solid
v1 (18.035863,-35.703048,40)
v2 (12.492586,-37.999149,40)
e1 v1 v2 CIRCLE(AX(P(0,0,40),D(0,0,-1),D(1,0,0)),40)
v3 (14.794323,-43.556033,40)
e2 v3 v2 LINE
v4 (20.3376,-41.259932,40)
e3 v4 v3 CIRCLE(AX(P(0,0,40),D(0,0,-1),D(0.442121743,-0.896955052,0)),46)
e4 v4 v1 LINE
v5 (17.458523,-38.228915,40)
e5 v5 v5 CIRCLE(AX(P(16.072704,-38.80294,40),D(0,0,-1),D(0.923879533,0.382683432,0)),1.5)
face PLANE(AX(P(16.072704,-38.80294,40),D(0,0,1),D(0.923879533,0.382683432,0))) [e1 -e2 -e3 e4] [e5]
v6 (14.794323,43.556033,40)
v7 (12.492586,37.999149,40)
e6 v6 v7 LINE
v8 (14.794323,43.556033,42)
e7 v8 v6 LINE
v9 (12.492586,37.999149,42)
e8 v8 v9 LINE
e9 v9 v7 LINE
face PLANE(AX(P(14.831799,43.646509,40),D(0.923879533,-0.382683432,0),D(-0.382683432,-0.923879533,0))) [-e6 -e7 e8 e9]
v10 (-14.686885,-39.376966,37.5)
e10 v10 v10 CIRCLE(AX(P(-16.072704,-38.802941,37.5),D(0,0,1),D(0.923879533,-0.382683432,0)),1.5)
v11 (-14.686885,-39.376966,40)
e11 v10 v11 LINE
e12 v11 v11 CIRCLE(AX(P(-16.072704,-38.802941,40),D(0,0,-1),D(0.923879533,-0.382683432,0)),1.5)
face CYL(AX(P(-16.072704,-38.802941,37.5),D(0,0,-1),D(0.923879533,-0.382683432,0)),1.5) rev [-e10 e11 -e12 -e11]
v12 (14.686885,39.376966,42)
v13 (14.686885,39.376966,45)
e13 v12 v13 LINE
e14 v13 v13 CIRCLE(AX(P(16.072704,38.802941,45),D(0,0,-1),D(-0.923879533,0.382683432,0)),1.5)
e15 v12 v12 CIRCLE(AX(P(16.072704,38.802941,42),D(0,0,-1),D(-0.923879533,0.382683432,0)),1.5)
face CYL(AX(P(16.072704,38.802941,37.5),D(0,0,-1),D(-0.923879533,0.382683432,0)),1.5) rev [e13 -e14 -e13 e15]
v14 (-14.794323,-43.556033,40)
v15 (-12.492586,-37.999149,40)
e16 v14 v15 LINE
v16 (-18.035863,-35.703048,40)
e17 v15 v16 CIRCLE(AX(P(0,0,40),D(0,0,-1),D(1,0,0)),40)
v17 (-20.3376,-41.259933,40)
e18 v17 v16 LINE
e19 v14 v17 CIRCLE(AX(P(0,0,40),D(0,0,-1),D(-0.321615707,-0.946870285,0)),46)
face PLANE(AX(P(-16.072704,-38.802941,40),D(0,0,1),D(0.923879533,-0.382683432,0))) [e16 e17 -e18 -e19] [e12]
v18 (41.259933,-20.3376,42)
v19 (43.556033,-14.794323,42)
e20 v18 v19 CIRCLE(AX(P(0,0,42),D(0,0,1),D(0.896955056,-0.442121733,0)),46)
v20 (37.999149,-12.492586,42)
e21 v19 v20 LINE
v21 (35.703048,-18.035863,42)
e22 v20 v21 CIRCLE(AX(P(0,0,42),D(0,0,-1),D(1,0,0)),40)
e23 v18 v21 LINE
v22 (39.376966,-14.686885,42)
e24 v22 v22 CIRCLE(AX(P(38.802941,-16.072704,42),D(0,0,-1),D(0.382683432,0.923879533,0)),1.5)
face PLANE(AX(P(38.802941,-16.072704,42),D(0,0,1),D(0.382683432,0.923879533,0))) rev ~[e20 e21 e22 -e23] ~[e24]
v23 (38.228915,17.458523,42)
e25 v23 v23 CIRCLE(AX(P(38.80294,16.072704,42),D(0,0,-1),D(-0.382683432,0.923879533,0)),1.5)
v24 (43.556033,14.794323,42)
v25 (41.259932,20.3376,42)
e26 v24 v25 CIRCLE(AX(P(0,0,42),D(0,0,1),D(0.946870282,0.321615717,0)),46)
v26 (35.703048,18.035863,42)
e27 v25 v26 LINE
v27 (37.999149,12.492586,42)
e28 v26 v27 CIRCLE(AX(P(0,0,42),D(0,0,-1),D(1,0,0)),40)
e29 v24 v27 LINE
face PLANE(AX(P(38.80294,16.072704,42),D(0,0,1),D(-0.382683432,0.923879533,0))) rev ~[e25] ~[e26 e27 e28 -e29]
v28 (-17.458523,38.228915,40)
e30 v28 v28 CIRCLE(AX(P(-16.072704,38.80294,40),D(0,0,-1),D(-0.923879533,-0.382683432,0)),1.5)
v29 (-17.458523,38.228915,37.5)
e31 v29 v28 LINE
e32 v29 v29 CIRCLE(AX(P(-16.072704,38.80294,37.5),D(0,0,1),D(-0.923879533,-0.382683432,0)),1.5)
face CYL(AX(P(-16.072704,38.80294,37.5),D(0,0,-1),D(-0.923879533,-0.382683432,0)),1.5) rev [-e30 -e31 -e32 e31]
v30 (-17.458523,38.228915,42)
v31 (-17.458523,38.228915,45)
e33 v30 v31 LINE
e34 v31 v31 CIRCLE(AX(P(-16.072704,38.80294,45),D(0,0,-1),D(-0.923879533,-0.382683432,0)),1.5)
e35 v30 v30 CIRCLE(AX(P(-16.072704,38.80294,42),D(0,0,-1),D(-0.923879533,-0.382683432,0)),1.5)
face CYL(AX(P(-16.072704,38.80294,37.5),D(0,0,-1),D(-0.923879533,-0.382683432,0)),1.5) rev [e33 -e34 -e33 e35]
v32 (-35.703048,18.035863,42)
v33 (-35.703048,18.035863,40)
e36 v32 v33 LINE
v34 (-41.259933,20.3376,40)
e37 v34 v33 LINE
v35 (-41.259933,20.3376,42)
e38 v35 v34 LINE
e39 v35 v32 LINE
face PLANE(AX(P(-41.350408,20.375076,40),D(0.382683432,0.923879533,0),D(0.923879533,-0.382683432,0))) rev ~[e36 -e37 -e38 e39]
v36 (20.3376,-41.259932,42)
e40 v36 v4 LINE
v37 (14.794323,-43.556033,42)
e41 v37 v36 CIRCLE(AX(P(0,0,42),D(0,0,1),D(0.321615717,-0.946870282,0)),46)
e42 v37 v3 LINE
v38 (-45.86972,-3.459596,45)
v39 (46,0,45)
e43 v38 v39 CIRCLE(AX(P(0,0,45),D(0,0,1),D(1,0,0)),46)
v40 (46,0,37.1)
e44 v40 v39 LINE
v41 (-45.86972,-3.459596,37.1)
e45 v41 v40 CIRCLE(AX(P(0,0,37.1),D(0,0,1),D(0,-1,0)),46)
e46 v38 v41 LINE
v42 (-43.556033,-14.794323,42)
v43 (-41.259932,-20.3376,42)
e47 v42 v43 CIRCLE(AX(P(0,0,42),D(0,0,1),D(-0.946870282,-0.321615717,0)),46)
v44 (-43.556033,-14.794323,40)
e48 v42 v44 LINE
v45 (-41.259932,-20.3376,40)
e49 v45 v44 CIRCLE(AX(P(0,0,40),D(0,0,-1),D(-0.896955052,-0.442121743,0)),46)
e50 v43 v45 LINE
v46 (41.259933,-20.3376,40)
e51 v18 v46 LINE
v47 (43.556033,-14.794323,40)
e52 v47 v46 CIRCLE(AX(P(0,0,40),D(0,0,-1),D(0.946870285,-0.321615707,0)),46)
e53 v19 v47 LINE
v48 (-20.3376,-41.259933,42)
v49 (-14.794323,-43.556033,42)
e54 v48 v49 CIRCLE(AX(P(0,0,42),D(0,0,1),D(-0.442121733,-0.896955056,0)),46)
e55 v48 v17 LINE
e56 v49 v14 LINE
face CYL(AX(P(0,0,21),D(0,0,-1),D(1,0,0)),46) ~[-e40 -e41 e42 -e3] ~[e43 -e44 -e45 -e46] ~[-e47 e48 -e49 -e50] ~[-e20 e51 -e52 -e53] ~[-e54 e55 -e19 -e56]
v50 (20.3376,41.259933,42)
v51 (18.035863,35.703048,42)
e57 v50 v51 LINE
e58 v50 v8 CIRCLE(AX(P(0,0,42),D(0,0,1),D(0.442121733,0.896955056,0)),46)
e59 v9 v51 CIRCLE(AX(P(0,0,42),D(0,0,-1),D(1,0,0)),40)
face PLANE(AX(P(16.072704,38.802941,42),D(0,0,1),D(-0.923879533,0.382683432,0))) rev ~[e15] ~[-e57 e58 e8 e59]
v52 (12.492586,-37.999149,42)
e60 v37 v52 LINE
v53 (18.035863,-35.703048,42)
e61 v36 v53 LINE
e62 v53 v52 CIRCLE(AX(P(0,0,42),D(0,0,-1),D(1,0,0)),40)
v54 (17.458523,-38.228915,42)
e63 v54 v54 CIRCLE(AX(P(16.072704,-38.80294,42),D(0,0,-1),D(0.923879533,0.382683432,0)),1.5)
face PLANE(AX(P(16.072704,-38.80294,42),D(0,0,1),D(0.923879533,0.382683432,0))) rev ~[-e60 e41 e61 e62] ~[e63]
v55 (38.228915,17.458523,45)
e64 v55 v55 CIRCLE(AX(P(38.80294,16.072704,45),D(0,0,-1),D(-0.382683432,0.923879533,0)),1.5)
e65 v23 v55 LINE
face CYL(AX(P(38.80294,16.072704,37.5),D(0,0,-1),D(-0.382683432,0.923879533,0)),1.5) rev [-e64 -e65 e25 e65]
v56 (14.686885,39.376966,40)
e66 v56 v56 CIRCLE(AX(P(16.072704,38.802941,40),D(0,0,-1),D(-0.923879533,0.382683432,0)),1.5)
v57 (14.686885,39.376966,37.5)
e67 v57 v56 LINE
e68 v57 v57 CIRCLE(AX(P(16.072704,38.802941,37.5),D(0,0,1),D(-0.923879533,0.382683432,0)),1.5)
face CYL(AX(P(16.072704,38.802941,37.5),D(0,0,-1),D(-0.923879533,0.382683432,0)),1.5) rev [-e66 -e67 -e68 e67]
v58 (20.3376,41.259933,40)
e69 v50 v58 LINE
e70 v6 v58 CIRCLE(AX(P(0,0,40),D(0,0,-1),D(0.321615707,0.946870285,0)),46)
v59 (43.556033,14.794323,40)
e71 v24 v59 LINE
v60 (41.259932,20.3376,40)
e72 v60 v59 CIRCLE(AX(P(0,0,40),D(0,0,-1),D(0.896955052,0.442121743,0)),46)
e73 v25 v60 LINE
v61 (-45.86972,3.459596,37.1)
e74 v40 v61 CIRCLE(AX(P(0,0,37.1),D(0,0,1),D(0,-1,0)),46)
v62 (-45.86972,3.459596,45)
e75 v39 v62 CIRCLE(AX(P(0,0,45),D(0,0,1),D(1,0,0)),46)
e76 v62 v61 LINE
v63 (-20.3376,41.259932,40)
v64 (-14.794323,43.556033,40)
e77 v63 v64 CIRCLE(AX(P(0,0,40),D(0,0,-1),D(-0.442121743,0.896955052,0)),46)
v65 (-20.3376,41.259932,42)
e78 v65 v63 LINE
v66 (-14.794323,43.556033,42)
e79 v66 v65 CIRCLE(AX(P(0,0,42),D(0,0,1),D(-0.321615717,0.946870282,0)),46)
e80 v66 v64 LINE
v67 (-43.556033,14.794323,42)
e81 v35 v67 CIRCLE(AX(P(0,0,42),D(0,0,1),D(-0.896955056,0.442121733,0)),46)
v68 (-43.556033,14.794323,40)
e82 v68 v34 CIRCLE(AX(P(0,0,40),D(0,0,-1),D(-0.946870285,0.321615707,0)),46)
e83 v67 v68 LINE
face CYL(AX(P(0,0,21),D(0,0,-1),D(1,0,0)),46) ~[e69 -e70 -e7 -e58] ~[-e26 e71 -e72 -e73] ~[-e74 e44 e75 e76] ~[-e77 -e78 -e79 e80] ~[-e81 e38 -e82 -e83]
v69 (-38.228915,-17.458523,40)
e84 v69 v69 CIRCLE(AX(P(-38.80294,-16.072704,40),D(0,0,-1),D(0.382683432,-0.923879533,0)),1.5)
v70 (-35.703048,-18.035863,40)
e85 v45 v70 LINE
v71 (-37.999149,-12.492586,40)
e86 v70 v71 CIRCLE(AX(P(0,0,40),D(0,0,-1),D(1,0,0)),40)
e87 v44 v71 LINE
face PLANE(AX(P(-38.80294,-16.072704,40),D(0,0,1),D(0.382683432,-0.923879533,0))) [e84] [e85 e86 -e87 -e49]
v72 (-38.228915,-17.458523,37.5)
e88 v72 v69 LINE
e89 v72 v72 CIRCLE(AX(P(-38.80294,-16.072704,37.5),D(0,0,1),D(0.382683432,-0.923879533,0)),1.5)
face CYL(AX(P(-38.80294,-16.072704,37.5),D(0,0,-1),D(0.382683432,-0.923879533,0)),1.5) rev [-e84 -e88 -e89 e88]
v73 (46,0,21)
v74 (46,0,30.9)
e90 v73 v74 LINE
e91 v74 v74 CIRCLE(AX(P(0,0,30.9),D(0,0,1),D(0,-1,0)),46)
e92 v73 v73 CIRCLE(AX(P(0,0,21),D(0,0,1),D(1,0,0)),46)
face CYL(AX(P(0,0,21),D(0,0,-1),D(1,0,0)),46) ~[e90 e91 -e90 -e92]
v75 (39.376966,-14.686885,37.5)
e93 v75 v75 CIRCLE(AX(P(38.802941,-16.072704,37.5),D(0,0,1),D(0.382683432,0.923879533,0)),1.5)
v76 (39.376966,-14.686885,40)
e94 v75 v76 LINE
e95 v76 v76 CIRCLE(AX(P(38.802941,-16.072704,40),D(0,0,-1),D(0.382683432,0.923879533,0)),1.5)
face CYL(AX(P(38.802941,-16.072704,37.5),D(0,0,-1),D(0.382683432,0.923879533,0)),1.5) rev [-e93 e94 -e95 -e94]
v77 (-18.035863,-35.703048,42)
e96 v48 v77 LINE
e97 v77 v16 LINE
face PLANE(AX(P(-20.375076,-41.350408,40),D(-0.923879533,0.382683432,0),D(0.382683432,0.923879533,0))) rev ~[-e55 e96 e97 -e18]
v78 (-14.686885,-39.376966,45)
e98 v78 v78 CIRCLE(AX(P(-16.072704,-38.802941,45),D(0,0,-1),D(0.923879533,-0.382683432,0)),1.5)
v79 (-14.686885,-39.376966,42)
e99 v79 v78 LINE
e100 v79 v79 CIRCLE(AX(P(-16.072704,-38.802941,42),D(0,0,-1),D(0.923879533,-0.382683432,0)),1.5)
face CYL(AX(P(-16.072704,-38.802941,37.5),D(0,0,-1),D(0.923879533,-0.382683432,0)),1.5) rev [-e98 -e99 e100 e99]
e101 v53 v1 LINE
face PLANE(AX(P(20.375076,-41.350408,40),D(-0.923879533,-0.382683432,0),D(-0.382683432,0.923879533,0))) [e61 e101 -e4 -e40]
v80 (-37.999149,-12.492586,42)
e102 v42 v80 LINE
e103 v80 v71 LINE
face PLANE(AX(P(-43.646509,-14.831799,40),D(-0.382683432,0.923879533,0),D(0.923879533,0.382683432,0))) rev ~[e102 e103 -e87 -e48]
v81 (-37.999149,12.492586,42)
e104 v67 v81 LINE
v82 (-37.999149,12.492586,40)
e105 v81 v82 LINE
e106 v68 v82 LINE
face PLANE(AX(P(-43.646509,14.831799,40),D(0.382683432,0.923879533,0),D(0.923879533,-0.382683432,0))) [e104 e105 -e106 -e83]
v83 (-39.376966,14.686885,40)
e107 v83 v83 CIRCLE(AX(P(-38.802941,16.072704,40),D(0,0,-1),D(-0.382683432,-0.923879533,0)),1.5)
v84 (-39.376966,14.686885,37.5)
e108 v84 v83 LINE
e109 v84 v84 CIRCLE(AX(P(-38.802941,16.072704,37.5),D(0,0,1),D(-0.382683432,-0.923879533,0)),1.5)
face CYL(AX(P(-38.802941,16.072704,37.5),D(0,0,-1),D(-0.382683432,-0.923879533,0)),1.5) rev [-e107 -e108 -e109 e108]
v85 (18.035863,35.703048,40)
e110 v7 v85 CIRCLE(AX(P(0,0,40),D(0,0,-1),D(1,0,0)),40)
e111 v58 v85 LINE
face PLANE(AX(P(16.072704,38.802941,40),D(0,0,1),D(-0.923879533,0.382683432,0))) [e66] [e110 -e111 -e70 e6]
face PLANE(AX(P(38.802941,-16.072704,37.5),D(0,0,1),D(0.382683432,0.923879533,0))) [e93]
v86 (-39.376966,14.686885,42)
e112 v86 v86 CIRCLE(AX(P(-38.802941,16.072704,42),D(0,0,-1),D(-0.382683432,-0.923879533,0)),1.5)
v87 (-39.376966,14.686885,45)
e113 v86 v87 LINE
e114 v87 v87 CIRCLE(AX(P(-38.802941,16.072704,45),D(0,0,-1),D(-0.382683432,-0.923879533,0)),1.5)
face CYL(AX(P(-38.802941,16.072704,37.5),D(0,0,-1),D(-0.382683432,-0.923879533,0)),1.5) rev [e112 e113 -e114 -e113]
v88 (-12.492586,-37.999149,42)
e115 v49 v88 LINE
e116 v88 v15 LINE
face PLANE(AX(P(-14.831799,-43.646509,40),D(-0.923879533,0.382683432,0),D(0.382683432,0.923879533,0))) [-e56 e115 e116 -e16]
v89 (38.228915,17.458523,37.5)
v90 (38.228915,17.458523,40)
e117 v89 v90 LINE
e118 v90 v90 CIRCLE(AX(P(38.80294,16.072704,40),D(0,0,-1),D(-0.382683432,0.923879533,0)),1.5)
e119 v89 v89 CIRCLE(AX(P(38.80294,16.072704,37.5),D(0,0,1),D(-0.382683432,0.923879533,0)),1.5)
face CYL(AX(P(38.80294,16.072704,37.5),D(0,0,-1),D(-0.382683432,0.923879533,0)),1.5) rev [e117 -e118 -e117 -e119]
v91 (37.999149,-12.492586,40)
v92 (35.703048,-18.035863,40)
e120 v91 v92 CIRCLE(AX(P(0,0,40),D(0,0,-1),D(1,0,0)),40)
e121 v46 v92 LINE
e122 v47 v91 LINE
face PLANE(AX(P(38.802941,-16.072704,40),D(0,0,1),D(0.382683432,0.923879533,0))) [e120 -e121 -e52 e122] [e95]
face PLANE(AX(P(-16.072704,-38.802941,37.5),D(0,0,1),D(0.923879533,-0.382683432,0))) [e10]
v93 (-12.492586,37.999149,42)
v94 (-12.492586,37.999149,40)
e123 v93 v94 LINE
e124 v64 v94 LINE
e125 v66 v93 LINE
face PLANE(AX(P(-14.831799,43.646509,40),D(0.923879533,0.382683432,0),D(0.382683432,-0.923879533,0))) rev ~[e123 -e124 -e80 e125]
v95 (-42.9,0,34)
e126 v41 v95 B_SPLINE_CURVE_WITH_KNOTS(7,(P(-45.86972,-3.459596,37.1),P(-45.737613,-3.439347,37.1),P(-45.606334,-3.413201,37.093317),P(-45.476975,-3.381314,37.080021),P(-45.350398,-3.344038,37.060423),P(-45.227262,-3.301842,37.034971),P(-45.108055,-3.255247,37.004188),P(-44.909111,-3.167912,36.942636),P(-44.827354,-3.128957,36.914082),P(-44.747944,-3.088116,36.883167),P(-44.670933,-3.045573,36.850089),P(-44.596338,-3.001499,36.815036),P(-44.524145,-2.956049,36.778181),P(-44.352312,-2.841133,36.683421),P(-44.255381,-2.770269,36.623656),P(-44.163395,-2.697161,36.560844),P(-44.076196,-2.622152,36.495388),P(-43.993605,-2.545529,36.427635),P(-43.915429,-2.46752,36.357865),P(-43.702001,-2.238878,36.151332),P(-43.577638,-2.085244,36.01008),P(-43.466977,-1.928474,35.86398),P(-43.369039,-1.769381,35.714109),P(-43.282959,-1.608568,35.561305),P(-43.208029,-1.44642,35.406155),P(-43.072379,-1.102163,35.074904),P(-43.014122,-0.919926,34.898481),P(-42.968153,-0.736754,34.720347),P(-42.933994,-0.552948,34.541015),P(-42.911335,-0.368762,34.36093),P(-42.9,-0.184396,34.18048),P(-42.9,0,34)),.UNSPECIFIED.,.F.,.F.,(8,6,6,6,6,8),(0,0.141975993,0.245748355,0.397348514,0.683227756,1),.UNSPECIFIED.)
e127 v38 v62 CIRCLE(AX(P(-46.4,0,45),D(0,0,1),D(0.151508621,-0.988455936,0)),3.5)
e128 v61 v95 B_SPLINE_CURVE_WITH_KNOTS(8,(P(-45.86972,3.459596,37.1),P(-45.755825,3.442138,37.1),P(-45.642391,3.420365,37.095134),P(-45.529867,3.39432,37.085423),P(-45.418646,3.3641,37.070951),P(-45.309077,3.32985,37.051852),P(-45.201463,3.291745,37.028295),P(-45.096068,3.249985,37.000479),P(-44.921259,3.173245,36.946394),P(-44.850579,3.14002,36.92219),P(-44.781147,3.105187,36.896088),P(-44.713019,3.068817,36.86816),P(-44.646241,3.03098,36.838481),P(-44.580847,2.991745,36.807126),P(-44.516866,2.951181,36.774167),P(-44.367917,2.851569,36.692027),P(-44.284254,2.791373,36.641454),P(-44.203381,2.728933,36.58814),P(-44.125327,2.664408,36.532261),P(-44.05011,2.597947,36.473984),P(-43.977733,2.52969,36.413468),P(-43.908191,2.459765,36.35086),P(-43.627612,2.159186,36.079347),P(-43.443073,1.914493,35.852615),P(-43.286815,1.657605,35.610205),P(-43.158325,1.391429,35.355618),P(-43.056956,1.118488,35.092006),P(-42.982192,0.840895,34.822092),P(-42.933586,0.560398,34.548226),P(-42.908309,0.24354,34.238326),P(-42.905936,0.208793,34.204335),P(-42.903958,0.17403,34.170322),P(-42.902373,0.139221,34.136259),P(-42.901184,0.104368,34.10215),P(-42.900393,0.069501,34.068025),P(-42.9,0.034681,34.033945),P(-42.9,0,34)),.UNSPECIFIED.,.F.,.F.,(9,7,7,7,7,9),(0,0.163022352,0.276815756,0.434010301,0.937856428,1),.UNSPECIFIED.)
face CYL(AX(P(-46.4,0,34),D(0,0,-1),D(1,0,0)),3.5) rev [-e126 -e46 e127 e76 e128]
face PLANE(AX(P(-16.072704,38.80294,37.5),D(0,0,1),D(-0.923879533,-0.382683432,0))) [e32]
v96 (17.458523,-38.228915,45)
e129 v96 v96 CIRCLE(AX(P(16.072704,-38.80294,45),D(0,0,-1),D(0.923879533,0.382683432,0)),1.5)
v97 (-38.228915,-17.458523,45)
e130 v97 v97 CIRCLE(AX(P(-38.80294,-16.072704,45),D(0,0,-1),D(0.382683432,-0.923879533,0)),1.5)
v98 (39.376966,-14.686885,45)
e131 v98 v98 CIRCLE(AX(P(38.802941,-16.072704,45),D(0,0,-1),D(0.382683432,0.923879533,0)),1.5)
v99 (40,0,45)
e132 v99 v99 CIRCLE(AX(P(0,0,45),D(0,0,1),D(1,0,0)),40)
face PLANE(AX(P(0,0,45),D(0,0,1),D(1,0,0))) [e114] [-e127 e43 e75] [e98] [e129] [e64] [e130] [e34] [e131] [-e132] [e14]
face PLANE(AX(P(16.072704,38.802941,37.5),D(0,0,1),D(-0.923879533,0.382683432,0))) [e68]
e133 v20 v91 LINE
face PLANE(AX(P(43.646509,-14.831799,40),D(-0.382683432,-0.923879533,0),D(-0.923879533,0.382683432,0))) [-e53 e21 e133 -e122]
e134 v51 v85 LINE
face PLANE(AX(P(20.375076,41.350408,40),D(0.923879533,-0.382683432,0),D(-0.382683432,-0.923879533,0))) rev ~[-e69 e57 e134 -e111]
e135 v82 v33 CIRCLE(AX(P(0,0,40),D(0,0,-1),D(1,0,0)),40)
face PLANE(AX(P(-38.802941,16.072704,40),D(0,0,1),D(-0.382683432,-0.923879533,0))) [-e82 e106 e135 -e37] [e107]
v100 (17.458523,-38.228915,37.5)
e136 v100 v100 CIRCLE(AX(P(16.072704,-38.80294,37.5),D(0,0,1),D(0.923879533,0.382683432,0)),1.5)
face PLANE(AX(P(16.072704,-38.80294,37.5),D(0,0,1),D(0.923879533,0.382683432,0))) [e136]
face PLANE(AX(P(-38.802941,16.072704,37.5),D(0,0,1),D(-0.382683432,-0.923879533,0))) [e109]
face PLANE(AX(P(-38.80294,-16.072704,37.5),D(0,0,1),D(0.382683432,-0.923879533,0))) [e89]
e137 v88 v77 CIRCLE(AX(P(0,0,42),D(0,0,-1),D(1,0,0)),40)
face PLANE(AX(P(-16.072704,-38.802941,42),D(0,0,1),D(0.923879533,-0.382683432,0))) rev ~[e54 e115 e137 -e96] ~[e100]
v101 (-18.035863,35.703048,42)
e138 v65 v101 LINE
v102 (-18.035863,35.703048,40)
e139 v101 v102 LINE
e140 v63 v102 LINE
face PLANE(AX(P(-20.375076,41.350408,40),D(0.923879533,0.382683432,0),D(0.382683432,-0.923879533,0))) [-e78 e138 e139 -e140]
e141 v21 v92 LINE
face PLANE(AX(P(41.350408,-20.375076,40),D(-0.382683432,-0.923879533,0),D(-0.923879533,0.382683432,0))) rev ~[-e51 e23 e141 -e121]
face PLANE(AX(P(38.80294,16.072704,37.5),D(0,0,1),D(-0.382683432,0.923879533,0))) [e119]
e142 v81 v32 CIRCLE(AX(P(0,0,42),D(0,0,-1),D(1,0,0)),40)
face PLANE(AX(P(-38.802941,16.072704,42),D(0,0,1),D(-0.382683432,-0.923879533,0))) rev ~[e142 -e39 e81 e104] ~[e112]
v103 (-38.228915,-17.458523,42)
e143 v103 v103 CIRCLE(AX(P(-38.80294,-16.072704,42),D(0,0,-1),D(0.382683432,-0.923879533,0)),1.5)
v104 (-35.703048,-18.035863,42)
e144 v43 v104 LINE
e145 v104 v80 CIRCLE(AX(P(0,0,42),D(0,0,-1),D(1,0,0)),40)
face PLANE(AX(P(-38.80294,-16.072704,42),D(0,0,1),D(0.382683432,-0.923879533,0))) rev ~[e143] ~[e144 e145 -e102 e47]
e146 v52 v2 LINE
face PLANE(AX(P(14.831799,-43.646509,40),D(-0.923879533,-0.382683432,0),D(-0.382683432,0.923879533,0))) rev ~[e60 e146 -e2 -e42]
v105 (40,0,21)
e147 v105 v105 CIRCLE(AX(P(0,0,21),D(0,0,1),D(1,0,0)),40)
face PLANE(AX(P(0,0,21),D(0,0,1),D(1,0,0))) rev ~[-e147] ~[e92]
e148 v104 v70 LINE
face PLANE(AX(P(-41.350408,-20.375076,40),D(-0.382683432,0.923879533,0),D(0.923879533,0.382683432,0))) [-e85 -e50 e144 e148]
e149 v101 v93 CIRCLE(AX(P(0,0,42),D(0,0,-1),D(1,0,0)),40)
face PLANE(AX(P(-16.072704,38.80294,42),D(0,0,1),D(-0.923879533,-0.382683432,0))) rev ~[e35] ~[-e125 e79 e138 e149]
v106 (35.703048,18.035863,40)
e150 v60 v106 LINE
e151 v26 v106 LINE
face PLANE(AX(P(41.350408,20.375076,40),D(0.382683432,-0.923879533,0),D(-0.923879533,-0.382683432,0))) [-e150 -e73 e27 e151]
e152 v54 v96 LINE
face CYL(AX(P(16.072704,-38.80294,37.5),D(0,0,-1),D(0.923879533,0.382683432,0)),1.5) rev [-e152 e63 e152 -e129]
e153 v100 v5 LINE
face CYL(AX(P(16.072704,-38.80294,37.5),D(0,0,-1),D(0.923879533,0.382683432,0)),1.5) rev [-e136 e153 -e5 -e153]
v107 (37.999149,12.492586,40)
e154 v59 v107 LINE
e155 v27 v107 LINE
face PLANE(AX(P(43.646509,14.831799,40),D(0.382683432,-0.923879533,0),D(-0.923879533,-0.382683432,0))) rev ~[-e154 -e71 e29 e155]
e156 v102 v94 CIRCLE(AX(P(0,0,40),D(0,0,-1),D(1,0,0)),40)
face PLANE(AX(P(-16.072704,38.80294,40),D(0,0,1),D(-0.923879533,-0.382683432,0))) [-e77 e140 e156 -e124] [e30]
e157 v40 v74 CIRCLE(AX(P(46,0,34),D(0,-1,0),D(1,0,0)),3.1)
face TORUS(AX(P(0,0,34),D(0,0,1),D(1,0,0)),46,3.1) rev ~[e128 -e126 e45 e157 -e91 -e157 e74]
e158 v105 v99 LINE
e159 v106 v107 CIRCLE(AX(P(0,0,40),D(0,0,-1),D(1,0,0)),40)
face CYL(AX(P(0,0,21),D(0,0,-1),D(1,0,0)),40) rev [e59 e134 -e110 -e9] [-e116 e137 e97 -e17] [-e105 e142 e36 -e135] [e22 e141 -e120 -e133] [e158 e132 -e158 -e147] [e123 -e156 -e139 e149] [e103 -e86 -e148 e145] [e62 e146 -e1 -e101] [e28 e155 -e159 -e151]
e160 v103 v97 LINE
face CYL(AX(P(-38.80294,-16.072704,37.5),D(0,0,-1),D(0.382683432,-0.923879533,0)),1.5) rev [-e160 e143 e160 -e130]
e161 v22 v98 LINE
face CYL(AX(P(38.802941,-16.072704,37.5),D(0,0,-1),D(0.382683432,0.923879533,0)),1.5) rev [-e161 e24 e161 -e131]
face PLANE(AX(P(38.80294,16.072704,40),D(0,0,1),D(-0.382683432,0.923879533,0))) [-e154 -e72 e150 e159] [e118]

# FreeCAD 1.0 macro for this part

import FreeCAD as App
import Part
import Sketcher
Q = App.Units.Quantity


def add_polygon(sketch, points):
    """Adds a closed chain of lines whose ends are joined by coincident constraints."""
    first, n = sketch.GeometryCount, len(points)
    for a, b in zip(points, points[1:] + points[:1]):
        sketch.addGeometry(Part.LineSegment(App.Vector(*a, 0), App.Vector(*b, 0)), False)
    for i in range(n):
        sketch.addConstraint(Sketcher.Constraint("Coincident", first + i, 2, first + (i + 1) % n, 1))

doc = App.newDocument("Part")
body = doc.addObject("PartDesign::Body", "Body")

# Sketch on XY plane
sketch1 = body.newObject("Sketcher::SketchObject", "Sketch")
sketch1.AttachmentSupport = (doc.getObject("XY_Plane"), [""])
sketch1.MapMode = "FlatFace"
add_polygon(sketch1, [(0, 8), (0, 0), (6, 0), (6, 8)])  # lines 0-3
sketch1.addConstraint([
    Sketcher.Constraint("Vertical", 0),
    Sketcher.Constraint("Horizontal", 1),
    Sketcher.Constraint("Vertical", 2),
    Sketcher.Constraint("Horizontal", 3),
    Sketcher.Constraint("Coincident", 0, 2, -1, 1),
    Sketcher.Constraint("DistanceX", 1, 1, 1, 2, Q("6 mm")),
    Sketcher.Constraint("DistanceY", 0, 2, 0, 1, Q("8 mm")),
])
pad1 = body.newObject("PartDesign::Pad", "Pad")
pad1.Profile = sketch1
pad1.Length = 2
body2 = doc.addObject("PartDesign::Body", "Body001")
doc.recompute()

body.Placement = App.Placement(App.Vector(30.405592, -34.648232, 33), App.Rotation(App.Vector(0, 0, 1), 45))
boolean = body2.newObject("PartDesign::Boolean", "Boolean")
boolean.Type = "Fuse"
boolean.addObjects([body])
body3 = doc.addObject("PartDesign::Body", "Body002")

# Sketch on XY plane
sketch2 = body3.newObject("Sketcher::SketchObject", "Sketch001")
sketch2.AttachmentSupport = (doc.getObject("XY_Plane002"), [""])
sketch2.MapMode = "FlatFace"
sketch2.AttachmentOffset = App.Placement(App.Vector(0, 0, 33), App.Rotation())
add_polygon(sketch2, [(38, -3), (46, -3), (46, 3), (38, 3)])  # lines 0-3
sketch2.addConstraint([
    Sketcher.Constraint("Horizontal", 0),
    Sketcher.Constraint("Vertical", 1),
    Sketcher.Constraint("Horizontal", 2),
    Sketcher.Constraint("Vertical", 3),
    Sketcher.Constraint("DistanceX", 0, 1, 0, 2, Q("8 mm")),
    Sketcher.Constraint("DistanceY", 1, 1, 1, 2, Q("6 mm")),
    Sketcher.Constraint("DistanceX", -1, 1, 0, 2, Q("46 mm")),
    Sketcher.Constraint("DistanceY", 0, 2, -1, 1, Q("3 mm")),
])
pad2 = body3.newObject("PartDesign::Pad", "Pad001")
pad2.Profile = sketch2
pad2.Length = 2
body4 = doc.addObject("PartDesign::Body", "Body003")

# Sketch on XY plane
sketch3 = body4.newObject("Sketcher::SketchObject", "Sketch002")
sketch3.AttachmentSupport = (doc.getObject("XY_Plane003"), [""])
sketch3.MapMode = "FlatFace"
sketch3.AttachmentOffset = App.Placement(App.Vector(0, 0, 33), App.Rotation())
add_polygon(sketch3, [(-3, -38), (-3, -46), (3, -46), (3, -38)])  # lines 0-3
sketch3.addConstraint([
    Sketcher.Constraint("Vertical", 0),
    Sketcher.Constraint("Horizontal", 1),
    Sketcher.Constraint("Vertical", 2),
    Sketcher.Constraint("Horizontal", 3),
    Sketcher.Constraint("DistanceX", 1, 1, 1, 2, Q("6 mm")),
    Sketcher.Constraint("DistanceY", 0, 2, 0, 1, Q("8 mm")),
    Sketcher.Constraint("DistanceX", 0, 2, -1, 1, Q("3 mm")),
    Sketcher.Constraint("DistanceY", 0, 2, -1, 1, Q("46 mm")),
])
pad3 = body4.newObject("PartDesign::Pad", "Pad002")
pad3.Profile = sketch3
pad3.Length = 2
body5 = doc.addObject("PartDesign::Body", "Body004")

# Sketch on XY plane
sketch4 = body5.newObject("Sketcher::SketchObject", "Sketch003")
sketch4.AttachmentSupport = (doc.getObject("XY_Plane004"), [""])
sketch4.MapMode = "FlatFace"
add_polygon(sketch4, [(0, 8), (0, 0), (6, 0), (6, 8)])  # lines 0-3
sketch4.addConstraint([
    Sketcher.Constraint("Vertical", 0),
    Sketcher.Constraint("Horizontal", 1),
    Sketcher.Constraint("Vertical", 2),
    Sketcher.Constraint("Horizontal", 3),
    Sketcher.Constraint("Coincident", 0, 2, -1, 1),
    Sketcher.Constraint("DistanceX", 1, 1, 1, 2, Q("6 mm")),
    Sketcher.Constraint("DistanceY", 0, 2, 0, 1, Q("8 mm")),
])
pad4 = body5.newObject("PartDesign::Pad", "Pad003")
pad4.Profile = sketch4
pad4.Length = 2
body6 = doc.addObject("PartDesign::Body", "Body005")
doc.recompute()

body5.Placement = App.Placement(App.Vector(34.648232, 30.405592, 33), App.Rotation(App.Vector(0, 0, 1), 135))
boolean2 = body6.newObject("PartDesign::Boolean", "Boolean001")
boolean2.Type = "Fuse"
boolean2.addObjects([body5])
body7 = doc.addObject("PartDesign::Body", "Body006")

# Sketch on XY plane
sketch5 = body7.newObject("Sketcher::SketchObject", "Sketch004")
sketch5.AttachmentSupport = (doc.getObject("XY_Plane006"), [""])
sketch5.MapMode = "FlatFace"
sketch5.AttachmentOffset = App.Placement(App.Vector(0, 0, 33), App.Rotation())
add_polygon(sketch5, [(3, 38), (3, 46), (-3, 46), (-3, 38)])  # lines 0-3
sketch5.addConstraint([
    Sketcher.Constraint("Vertical", 0),
    Sketcher.Constraint("Horizontal", 1),
    Sketcher.Constraint("Vertical", 2),
    Sketcher.Constraint("Horizontal", 3),
    Sketcher.Constraint("DistanceX", 1, 2, 1, 1, Q("6 mm")),
    Sketcher.Constraint("DistanceY", 0, 1, 0, 2, Q("8 mm")),
    Sketcher.Constraint("DistanceX", -1, 1, 0, 2, Q("3 mm")),
    Sketcher.Constraint("DistanceY", -1, 1, 0, 2, Q("46 mm")),
])
pad5 = body7.newObject("PartDesign::Pad", "Pad004")
pad5.Profile = sketch5
pad5.Length = 2
body8 = doc.addObject("PartDesign::Body", "Body007")

# Sketch on XY plane
sketch6 = body8.newObject("Sketcher::SketchObject", "Sketch005")
sketch6.AttachmentSupport = (doc.getObject("XY_Plane007"), [""])
sketch6.MapMode = "FlatFace"
add_polygon(sketch6, [(0, 8), (0, 0), (6, 0), (6, 8)])  # lines 0-3
sketch6.addConstraint([
    Sketcher.Constraint("Vertical", 0),
    Sketcher.Constraint("Horizontal", 1),
    Sketcher.Constraint("Vertical", 2),
    Sketcher.Constraint("Horizontal", 3),
    Sketcher.Constraint("Coincident", 0, 2, -1, 1),
    Sketcher.Constraint("DistanceX", 1, 1, 1, 2, Q("6 mm")),
    Sketcher.Constraint("DistanceY", 0, 2, 0, 1, Q("8 mm")),
])
pad6 = body8.newObject("PartDesign::Pad", "Pad005")
pad6.Profile = sketch6
pad6.Length = 2
body9 = doc.addObject("PartDesign::Body", "Body008")
doc.recompute()

body8.Placement = App.Placement(App.Vector(-30.405592, 34.648232, 33), App.Rotation(App.Vector(0, 0, 1), 225))
boolean3 = body9.newObject("PartDesign::Boolean", "Boolean002")
boolean3.Type = "Fuse"
boolean3.addObjects([body8])
body10 = doc.addObject("PartDesign::Body", "Body009")

# Sketch on XY plane
sketch7 = body10.newObject("Sketcher::SketchObject", "Sketch006")
sketch7.AttachmentSupport = (doc.getObject("XY_Plane009"), [""])
sketch7.MapMode = "FlatFace"
sketch7.AttachmentOffset = App.Placement(App.Vector(0, 0, 33), App.Rotation())
add_polygon(sketch7, [(-38, 3), (-46, 3), (-46, -3), (-38, -3)])  # lines 0-3
sketch7.addConstraint([
    Sketcher.Constraint("Horizontal", 0),
    Sketcher.Constraint("Vertical", 1),
    Sketcher.Constraint("Horizontal", 2),
    Sketcher.Constraint("Vertical", 3),
    Sketcher.Constraint("DistanceX", 0, 2, 0, 1, Q("8 mm")),
    Sketcher.Constraint("DistanceY", 1, 2, 1, 1, Q("6 mm")),
    Sketcher.Constraint("DistanceX", 0, 2, -1, 1, Q("46 mm")),
    Sketcher.Constraint("DistanceY", -1, 1, 0, 2, Q("3 mm")),
])
pad7 = body10.newObject("PartDesign::Pad", "Pad006")
pad7.Profile = sketch7
pad7.Length = 2
body11 = doc.addObject("PartDesign::Body", "Body010")

# Sketch on XY plane
sketch8 = body11.newObject("Sketcher::SketchObject", "Sketch007")
sketch8.AttachmentSupport = (doc.getObject("XY_Plane010"), [""])
sketch8.MapMode = "FlatFace"
add_polygon(sketch8, [(0, 8), (0, 0), (6, 0), (6, 8)])  # lines 0-3
sketch8.addConstraint([
    Sketcher.Constraint("Vertical", 0),
    Sketcher.Constraint("Horizontal", 1),
    Sketcher.Constraint("Vertical", 2),
    Sketcher.Constraint("Horizontal", 3),
    Sketcher.Constraint("Coincident", 0, 2, -1, 1),
    Sketcher.Constraint("DistanceX", 1, 1, 1, 2, Q("6 mm")),
    Sketcher.Constraint("DistanceY", 0, 2, 0, 1, Q("8 mm")),
])
pad8 = body11.newObject("PartDesign::Pad", "Pad007")
pad8.Profile = sketch8
pad8.Length = 2
body12 = doc.addObject("PartDesign::Body", "Body011")
body12.AllowCompound = True
doc.recompute()

body11.Placement = App.Placement(App.Vector(-34.648232, -30.405592, 33), App.Rotation(App.Vector(0, 0, -1), 45))
boolean4 = body12.newObject("PartDesign::Boolean", "Boolean003")
boolean4.Type = "Fuse"
boolean4.addObjects([body11])
doc.recompute()

boolean5 = body12.newObject("PartDesign::Boolean", "Boolean004")
boolean5.Type = "Fuse"
boolean5.addObjects([body2])
doc.recompute()

boolean6 = body12.newObject("PartDesign::Boolean", "Boolean005")
boolean6.Type = "Fuse"
boolean6.addObjects([body3])
doc.recompute()

boolean7 = body12.newObject("PartDesign::Boolean", "Boolean006")
boolean7.Type = "Fuse"
boolean7.addObjects([body4])
doc.recompute()

boolean8 = body12.newObject("PartDesign::Boolean", "Boolean007")
boolean8.Type = "Fuse"
boolean8.addObjects([body6])
doc.recompute()

boolean9 = body12.newObject("PartDesign::Boolean", "Boolean008")
boolean9.Type = "Fuse"
boolean9.addObjects([body7])
doc.recompute()

boolean10 = body12.newObject("PartDesign::Boolean", "Boolean009")
boolean10.Type = "Fuse"
boolean10.addObjects([body9])
doc.recompute()

boolean11 = body12.newObject("PartDesign::Boolean", "Boolean010")
boolean11.Type = "Fuse"
boolean11.addObjects([body10])
body13 = doc.addObject("PartDesign::Body", "Body012")
body13.AllowCompound = True
doc.recompute()

body12.Placement = App.Placement(App.Vector(0, 0, 7), App.Rotation(App.Vector(0, 0, 1), 22.5))
boolean12 = body13.newObject("PartDesign::Boolean", "Boolean011")
boolean12.Type = "Fuse"
boolean12.addObjects([body12])
body14 = doc.addObject("PartDesign::Body", "Body013")

# Sketch on XY plane
sketch9 = body14.newObject("Sketcher::SketchObject", "Sketch008")
sketch9.AttachmentSupport = (doc.getObject("XY_Plane013"), [""])
sketch9.MapMode = "FlatFace"
sketch9.addGeometry(Part.Circle(App.Vector(0, 0, 0), App.Vector(0, 0, 1), 1.5), False)
sketch9.addConstraint([
    Sketcher.Constraint("Coincident", 0, 3, -1, 1),
    Sketcher.Constraint("Diameter", 0, Q("3 mm")),
])
pad9 = body14.newObject("PartDesign::Pad", "Pad008")
pad9.Profile = sketch9
pad9.Length = 32
body15 = doc.addObject("PartDesign::Body", "Body014")
doc.recompute()

body14.Placement = App.Placement(App.Vector(29.698485, -29.698485, 33.5), App.Rotation(App.Vector(0, 0, 1), 45))
boolean13 = body15.newObject("PartDesign::Boolean", "Boolean012")
boolean13.Type = "Fuse"
boolean13.addObjects([body14])
body16 = doc.addObject("PartDesign::Body", "Body015")

# Sketch on XY plane
sketch10 = body16.newObject("Sketcher::SketchObject", "Sketch009")
sketch10.AttachmentSupport = (doc.getObject("XY_Plane015"), [""])
sketch10.MapMode = "FlatFace"
sketch10.AttachmentOffset = App.Placement(App.Vector(0, 0, 33.5), App.Rotation())
sketch10.addGeometry(Part.Circle(App.Vector(42, 0, 0), App.Vector(0, 0, 1), 1.5), False)
sketch10.addConstraint([
    Sketcher.Constraint("PointOnObject", 0, 3, -1),
    Sketcher.Constraint("Diameter", 0, Q("3 mm")),
    Sketcher.Constraint("DistanceX", -1, 1, 0, 3, Q("42 mm")),
])
pad10 = body16.newObject("PartDesign::Pad", "Pad009")
pad10.Profile = sketch10
pad10.Length = 32
body17 = doc.addObject("PartDesign::Body", "Body016")

# Sketch on XY plane
sketch11 = body17.newObject("Sketcher::SketchObject", "Sketch010")
sketch11.AttachmentSupport = (doc.getObject("XY_Plane016"), [""])
sketch11.MapMode = "FlatFace"
sketch11.addGeometry(Part.Circle(App.Vector(0, 0, 0), App.Vector(0, 0, 1), 1.5), False)
sketch11.addConstraint([
    Sketcher.Constraint("Coincident", 0, 3, -1, 1),
    Sketcher.Constraint("Diameter", 0, Q("3 mm")),
])
pad11 = body17.newObject("PartDesign::Pad", "Pad010")
pad11.Profile = sketch11
pad11.Length = 32
body18 = doc.addObject("PartDesign::Body", "Body017")
doc.recompute()

body17.Placement = App.Placement(App.Vector(29.698485, 29.698485, 33.5), App.Rotation(App.Vector(0, 0, 1), 135))
boolean14 = body18.newObject("PartDesign::Boolean", "Boolean013")
boolean14.Type = "Fuse"
boolean14.addObjects([body17])
body19 = doc.addObject("PartDesign::Body", "Body018")

# Sketch on XY plane
sketch12 = body19.newObject("Sketcher::SketchObject", "Sketch011")
sketch12.AttachmentSupport = (doc.getObject("XY_Plane018"), [""])
sketch12.MapMode = "FlatFace"
sketch12.AttachmentOffset = App.Placement(App.Vector(0, 0, 33.5), App.Rotation())
sketch12.addGeometry(Part.Circle(App.Vector(0, 42, 0), App.Vector(0, 0, 1), 1.5), False)
sketch12.addConstraint([
    Sketcher.Constraint("PointOnObject", 0, 3, -2),
    Sketcher.Constraint("Diameter", 0, Q("3 mm")),
    Sketcher.Constraint("DistanceY", -1, 1, 0, 3, Q("42 mm")),
])
pad12 = body19.newObject("PartDesign::Pad", "Pad011")
pad12.Profile = sketch12
pad12.Length = 32
body20 = doc.addObject("PartDesign::Body", "Body019")

# Sketch on XY plane
sketch13 = body20.newObject("Sketcher::SketchObject", "Sketch012")
sketch13.AttachmentSupport = (doc.getObject("XY_Plane019"), [""])
sketch13.MapMode = "FlatFace"
sketch13.addGeometry(Part.Circle(App.Vector(0, 0, 0), App.Vector(0, 0, 1), 1.5), False)
sketch13.addConstraint([
    Sketcher.Constraint("Coincident", 0, 3, -1, 1),
    Sketcher.Constraint("Diameter", 0, Q("3 mm")),
])
pad13 = body20.newObject("PartDesign::Pad", "Pad012")
pad13.Profile = sketch13
pad13.Length = 32
body21 = doc.addObject("PartDesign::Body", "Body020")
doc.recompute()

body20.Placement = App.Placement(App.Vector(-29.698485, 29.698485, 33.5), App.Rotation(App.Vector(0, 0, 1), 225))
boolean15 = body21.newObject("PartDesign::Boolean", "Boolean014")
boolean15.Type = "Fuse"
boolean15.addObjects([body20])
body22 = doc.addObject("PartDesign::Body", "Body021")

# Sketch on XY plane
sketch14 = body22.newObject("Sketcher::SketchObject", "Sketch013")
sketch14.AttachmentSupport = (doc.getObject("XY_Plane021"), [""])
sketch14.MapMode = "FlatFace"
sketch14.AttachmentOffset = App.Placement(App.Vector(0, 0, 33.5), App.Rotation())
sketch14.addGeometry(Part.Circle(App.Vector(-42, 0, 0), App.Vector(0, 0, 1), 1.5), False)
sketch14.addConstraint([
    Sketcher.Constraint("PointOnObject", 0, 3, -1),
    Sketcher.Constraint("Diameter", 0, Q("3 mm")),
    Sketcher.Constraint("DistanceX", 0, 3, -1, 1, Q("42 mm")),
])
pad14 = body22.newObject("PartDesign::Pad", "Pad013")
pad14.Profile = sketch14
pad14.Length = 32
body23 = doc.addObject("PartDesign::Body", "Body022")

# Sketch on XY plane
sketch15 = body23.newObject("Sketcher::SketchObject", "Sketch014")
sketch15.AttachmentSupport = (doc.getObject("XY_Plane022"), [""])
sketch15.MapMode = "FlatFace"
sketch15.addGeometry(Part.Circle(App.Vector(0, 0, 0), App.Vector(0, 0, 1), 1.5), False)
sketch15.addConstraint([
    Sketcher.Constraint("Coincident", 0, 3, -1, 1),
    Sketcher.Constraint("Diameter", 0, Q("3 mm")),
])
pad15 = body23.newObject("PartDesign::Pad", "Pad014")
pad15.Profile = sketch15
pad15.Length = 32
body24 = doc.addObject("PartDesign::Body", "Body023")
doc.recompute()

body23.Placement = App.Placement(App.Vector(-29.698485, -29.698485, 33.5), App.Rotation(App.Vector(0, 0, -1), 45))
boolean16 = body24.newObject("PartDesign::Boolean", "Boolean015")
boolean16.Type = "Fuse"
boolean16.addObjects([body23])
body25 = doc.addObject("PartDesign::Body", "Body024")
body25.AllowCompound = True

# Sketch on XY plane
sketch16 = body25.newObject("Sketcher::SketchObject", "Sketch015")
sketch16.AttachmentSupport = (doc.getObject("XY_Plane024"), [""])
sketch16.MapMode = "FlatFace"
sketch16.AttachmentOffset = App.Placement(App.Vector(0, 0, 33.5), App.Rotation())
sketch16.addGeometry(Part.Circle(App.Vector(0, -42, 0), App.Vector(0, 0, 1), 1.5), False)
sketch16.addConstraint([
    Sketcher.Constraint("PointOnObject", 0, 3, -2),
    Sketcher.Constraint("Diameter", 0, Q("3 mm")),
    Sketcher.Constraint("DistanceY", 0, 3, -1, 1, Q("42 mm")),
])
pad16 = body25.newObject("PartDesign::Pad", "Pad015")
pad16.Profile = sketch16
pad16.Length = 32
doc.recompute()

boolean17 = body25.newObject("PartDesign::Boolean", "Boolean016")
boolean17.Type = "Fuse"
boolean17.addObjects([body15])
doc.recompute()

boolean18 = body25.newObject("PartDesign::Boolean", "Boolean017")
boolean18.Type = "Fuse"
boolean18.addObjects([body16])
doc.recompute()

boolean19 = body25.newObject("PartDesign::Boolean", "Boolean018")
boolean19.Type = "Fuse"
boolean19.addObjects([body18])
doc.recompute()

boolean20 = body25.newObject("PartDesign::Boolean", "Boolean019")
boolean20.Type = "Fuse"
boolean20.addObjects([body19])
doc.recompute()

boolean21 = body25.newObject("PartDesign::Boolean", "Boolean020")
boolean21.Type = "Fuse"
boolean21.addObjects([body21])
doc.recompute()

boolean22 = body25.newObject("PartDesign::Boolean", "Boolean021")
boolean22.Type = "Fuse"
boolean22.addObjects([body22])
doc.recompute()

boolean23 = body25.newObject("PartDesign::Boolean", "Boolean022")
boolean23.Type = "Fuse"
boolean23.addObjects([body24])
body26 = doc.addObject("PartDesign::Body", "Body025")
body26.AllowCompound = True
doc.recompute()

body25.Placement = App.Placement(App.Vector(0, 0, 4), App.Rotation(App.Vector(0, 0, 1), 22.5))
boolean24 = body26.newObject("PartDesign::Boolean", "Boolean023")
boolean24.Type = "Fuse"
boolean24.addObjects([body25])
body27 = doc.addObject("PartDesign::Body", "Body026")

# Sketch on XY plane
sketch17 = body27.newObject("Sketcher::SketchObject", "Sketch016")
sketch17.AttachmentSupport = (doc.getObject("XY_Plane026"), [""])
sketch17.MapMode = "FlatFace"
sketch17.AttachmentOffset = App.Placement(App.Vector(0, 0, 34), App.Rotation())
sketch17.addGeometry(Part.Circle(App.Vector(-46.4, 0, 0), App.Vector(0, 0, 1), 3.5), False)
sketch17.addConstraint([
    Sketcher.Constraint("PointOnObject", 0, 3, -1),
    Sketcher.Constraint("Diameter", 0, Q("7 mm")),
    Sketcher.Constraint("DistanceX", 0, 3, -1, 1, Q("46.4 mm")),
])
pad17 = body27.newObject("PartDesign::Pad", "Pad016")
pad17.Profile = sketch17
pad17.Length = 20
body28 = doc.addObject("PartDesign::Body", "Body027")

# Sketch on XZ plane
sketch18 = body28.newObject("Sketcher::SketchObject", "Sketch017")
sketch18.AttachmentSupport = (doc.getObject("XZ_Plane027"), [""])
sketch18.MapMode = "FlatFace"
sketch18.addGeometry(Part.Circle(App.Vector(46, 34, 0), App.Vector(0, 0, 1), 3.1), False)
sketch18.addConstraint([
    Sketcher.Constraint("Diameter", 0, Q("6.2 mm")),
    Sketcher.Constraint("DistanceX", -1, 1, 0, 3, Q("46 mm")),
    Sketcher.Constraint("DistanceY", -1, 1, 0, 3, Q("34 mm")),
])
revolution = body28.newObject("PartDesign::Revolution", "Revolution")
revolution.Profile = sketch18
revolution.ReferenceAxis = (sketch18, ["V_Axis"])
revolution.Angle = 360
body29 = doc.addObject("PartDesign::Body", "Body028")

# Sketch on XY plane
sketch19 = body29.newObject("Sketcher::SketchObject", "Sketch018")
sketch19.AttachmentSupport = (doc.getObject("XY_Plane028"), [""])
sketch19.MapMode = "FlatFace"
sketch19.AttachmentOffset = App.Placement(App.Vector(0, 0, 21), App.Rotation())
sketch19.addGeometry([
    Part.Circle(App.Vector(0, 0, 0), App.Vector(0, 0, 1), 46),
    Part.Circle(App.Vector(0, 0, 0), App.Vector(0, 0, 1), 40),
], False)
sketch19.addConstraint([
    Sketcher.Constraint("Coincident", 0, 3, -1, 1),
    Sketcher.Constraint("Coincident", 1, 3, -1, 1),
    Sketcher.Constraint("Diameter", 0, Q("92 mm")),
    Sketcher.Constraint("Diameter", 1, Q("80 mm")),
])
pad18 = body29.newObject("PartDesign::Pad", "Pad017")
pad18.Profile = sketch19
pad18.Length = 24
doc.recompute()

boolean25 = body29.newObject("PartDesign::Boolean", "Boolean024")
boolean25.Type = "Cut"
boolean25.addObjects([body28])
doc.recompute()

boolean26 = body29.newObject("PartDesign::Boolean", "Boolean025")
boolean26.Type = "Cut"
boolean26.addObjects([body27])
doc.recompute()

boolean27 = body29.newObject("PartDesign::Boolean", "Boolean026")
boolean27.Type = "Cut"
boolean27.addObjects([body26])
doc.recompute()

boolean28 = body29.newObject("PartDesign::Boolean", "Boolean027")
boolean28.Type = "Cut"
boolean28.addObjects([body13])

doc.recompute()
